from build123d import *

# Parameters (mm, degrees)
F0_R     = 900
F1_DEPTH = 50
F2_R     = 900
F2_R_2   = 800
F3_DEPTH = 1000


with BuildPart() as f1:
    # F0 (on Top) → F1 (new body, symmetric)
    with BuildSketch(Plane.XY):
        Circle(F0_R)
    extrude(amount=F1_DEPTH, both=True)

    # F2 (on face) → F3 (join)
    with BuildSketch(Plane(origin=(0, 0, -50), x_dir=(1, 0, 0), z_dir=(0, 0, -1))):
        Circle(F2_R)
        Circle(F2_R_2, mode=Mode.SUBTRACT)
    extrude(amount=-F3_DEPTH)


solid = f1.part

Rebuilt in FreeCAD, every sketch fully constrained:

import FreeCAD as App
import Part
import Sketcher

V = App.Vector
Q = App.Units.Quantity

doc = App.newDocument("Part")
body = doc.addObject("PartDesign::Body", "Body")

sketch1 = doc.addObject("Sketcher::SketchObject", "Sketch")
body.addObject(sketch1)
sketch1.AttachmentSupport = (doc.XY_Plane, [""])
sketch1.MapMode = "FlatFace"
sketch1.addGeometry(Part.Circle(V(0, 0, 0), V(0, 0, 1), 900), False)
sketch1.addConstraint([
    Sketcher.Constraint("Coincident", 0, 3, -1, 1),
    Sketcher.Constraint("Diameter", 0, Q("1800 mm")),
])
pad1 = doc.addObject("PartDesign::Pad", "Pad")
body.addObject(pad1)
pad1.Profile = sketch1
pad1.Length = 100
pad1.Midplane = True

sketch2 = doc.addObject("Sketcher::SketchObject", "Sketch001")
body.addObject(sketch2)
sketch2.AttachmentSupport = (doc.XY_Plane, [""])
sketch2.MapMode = "FlatFace"
sketch2.AttachmentOffset = App.Placement(V(0, 0, -50), App.Rotation())
sketch2.addGeometry([
    Part.Circle(V(0, 0, 0), V(0, 0, 1), 900),
    Part.Circle(V(0, 0, 0), V(0, 0, 1), 800),
], False)
sketch2.addConstraint([
    Sketcher.Constraint("Coincident", 0, 3, -1, 1),
    Sketcher.Constraint("Coincident", 1, 3, -1, 1),
    Sketcher.Constraint("Diameter", 0, Q("1800 mm")),
    Sketcher.Constraint("Diameter", 1, Q("1600 mm")),
])
pad2 = doc.addObject("PartDesign::Pad", "Pad001")
body.addObject(pad2)
pad2.Profile = sketch2
pad2.Length = 1000

doc.recompute()
